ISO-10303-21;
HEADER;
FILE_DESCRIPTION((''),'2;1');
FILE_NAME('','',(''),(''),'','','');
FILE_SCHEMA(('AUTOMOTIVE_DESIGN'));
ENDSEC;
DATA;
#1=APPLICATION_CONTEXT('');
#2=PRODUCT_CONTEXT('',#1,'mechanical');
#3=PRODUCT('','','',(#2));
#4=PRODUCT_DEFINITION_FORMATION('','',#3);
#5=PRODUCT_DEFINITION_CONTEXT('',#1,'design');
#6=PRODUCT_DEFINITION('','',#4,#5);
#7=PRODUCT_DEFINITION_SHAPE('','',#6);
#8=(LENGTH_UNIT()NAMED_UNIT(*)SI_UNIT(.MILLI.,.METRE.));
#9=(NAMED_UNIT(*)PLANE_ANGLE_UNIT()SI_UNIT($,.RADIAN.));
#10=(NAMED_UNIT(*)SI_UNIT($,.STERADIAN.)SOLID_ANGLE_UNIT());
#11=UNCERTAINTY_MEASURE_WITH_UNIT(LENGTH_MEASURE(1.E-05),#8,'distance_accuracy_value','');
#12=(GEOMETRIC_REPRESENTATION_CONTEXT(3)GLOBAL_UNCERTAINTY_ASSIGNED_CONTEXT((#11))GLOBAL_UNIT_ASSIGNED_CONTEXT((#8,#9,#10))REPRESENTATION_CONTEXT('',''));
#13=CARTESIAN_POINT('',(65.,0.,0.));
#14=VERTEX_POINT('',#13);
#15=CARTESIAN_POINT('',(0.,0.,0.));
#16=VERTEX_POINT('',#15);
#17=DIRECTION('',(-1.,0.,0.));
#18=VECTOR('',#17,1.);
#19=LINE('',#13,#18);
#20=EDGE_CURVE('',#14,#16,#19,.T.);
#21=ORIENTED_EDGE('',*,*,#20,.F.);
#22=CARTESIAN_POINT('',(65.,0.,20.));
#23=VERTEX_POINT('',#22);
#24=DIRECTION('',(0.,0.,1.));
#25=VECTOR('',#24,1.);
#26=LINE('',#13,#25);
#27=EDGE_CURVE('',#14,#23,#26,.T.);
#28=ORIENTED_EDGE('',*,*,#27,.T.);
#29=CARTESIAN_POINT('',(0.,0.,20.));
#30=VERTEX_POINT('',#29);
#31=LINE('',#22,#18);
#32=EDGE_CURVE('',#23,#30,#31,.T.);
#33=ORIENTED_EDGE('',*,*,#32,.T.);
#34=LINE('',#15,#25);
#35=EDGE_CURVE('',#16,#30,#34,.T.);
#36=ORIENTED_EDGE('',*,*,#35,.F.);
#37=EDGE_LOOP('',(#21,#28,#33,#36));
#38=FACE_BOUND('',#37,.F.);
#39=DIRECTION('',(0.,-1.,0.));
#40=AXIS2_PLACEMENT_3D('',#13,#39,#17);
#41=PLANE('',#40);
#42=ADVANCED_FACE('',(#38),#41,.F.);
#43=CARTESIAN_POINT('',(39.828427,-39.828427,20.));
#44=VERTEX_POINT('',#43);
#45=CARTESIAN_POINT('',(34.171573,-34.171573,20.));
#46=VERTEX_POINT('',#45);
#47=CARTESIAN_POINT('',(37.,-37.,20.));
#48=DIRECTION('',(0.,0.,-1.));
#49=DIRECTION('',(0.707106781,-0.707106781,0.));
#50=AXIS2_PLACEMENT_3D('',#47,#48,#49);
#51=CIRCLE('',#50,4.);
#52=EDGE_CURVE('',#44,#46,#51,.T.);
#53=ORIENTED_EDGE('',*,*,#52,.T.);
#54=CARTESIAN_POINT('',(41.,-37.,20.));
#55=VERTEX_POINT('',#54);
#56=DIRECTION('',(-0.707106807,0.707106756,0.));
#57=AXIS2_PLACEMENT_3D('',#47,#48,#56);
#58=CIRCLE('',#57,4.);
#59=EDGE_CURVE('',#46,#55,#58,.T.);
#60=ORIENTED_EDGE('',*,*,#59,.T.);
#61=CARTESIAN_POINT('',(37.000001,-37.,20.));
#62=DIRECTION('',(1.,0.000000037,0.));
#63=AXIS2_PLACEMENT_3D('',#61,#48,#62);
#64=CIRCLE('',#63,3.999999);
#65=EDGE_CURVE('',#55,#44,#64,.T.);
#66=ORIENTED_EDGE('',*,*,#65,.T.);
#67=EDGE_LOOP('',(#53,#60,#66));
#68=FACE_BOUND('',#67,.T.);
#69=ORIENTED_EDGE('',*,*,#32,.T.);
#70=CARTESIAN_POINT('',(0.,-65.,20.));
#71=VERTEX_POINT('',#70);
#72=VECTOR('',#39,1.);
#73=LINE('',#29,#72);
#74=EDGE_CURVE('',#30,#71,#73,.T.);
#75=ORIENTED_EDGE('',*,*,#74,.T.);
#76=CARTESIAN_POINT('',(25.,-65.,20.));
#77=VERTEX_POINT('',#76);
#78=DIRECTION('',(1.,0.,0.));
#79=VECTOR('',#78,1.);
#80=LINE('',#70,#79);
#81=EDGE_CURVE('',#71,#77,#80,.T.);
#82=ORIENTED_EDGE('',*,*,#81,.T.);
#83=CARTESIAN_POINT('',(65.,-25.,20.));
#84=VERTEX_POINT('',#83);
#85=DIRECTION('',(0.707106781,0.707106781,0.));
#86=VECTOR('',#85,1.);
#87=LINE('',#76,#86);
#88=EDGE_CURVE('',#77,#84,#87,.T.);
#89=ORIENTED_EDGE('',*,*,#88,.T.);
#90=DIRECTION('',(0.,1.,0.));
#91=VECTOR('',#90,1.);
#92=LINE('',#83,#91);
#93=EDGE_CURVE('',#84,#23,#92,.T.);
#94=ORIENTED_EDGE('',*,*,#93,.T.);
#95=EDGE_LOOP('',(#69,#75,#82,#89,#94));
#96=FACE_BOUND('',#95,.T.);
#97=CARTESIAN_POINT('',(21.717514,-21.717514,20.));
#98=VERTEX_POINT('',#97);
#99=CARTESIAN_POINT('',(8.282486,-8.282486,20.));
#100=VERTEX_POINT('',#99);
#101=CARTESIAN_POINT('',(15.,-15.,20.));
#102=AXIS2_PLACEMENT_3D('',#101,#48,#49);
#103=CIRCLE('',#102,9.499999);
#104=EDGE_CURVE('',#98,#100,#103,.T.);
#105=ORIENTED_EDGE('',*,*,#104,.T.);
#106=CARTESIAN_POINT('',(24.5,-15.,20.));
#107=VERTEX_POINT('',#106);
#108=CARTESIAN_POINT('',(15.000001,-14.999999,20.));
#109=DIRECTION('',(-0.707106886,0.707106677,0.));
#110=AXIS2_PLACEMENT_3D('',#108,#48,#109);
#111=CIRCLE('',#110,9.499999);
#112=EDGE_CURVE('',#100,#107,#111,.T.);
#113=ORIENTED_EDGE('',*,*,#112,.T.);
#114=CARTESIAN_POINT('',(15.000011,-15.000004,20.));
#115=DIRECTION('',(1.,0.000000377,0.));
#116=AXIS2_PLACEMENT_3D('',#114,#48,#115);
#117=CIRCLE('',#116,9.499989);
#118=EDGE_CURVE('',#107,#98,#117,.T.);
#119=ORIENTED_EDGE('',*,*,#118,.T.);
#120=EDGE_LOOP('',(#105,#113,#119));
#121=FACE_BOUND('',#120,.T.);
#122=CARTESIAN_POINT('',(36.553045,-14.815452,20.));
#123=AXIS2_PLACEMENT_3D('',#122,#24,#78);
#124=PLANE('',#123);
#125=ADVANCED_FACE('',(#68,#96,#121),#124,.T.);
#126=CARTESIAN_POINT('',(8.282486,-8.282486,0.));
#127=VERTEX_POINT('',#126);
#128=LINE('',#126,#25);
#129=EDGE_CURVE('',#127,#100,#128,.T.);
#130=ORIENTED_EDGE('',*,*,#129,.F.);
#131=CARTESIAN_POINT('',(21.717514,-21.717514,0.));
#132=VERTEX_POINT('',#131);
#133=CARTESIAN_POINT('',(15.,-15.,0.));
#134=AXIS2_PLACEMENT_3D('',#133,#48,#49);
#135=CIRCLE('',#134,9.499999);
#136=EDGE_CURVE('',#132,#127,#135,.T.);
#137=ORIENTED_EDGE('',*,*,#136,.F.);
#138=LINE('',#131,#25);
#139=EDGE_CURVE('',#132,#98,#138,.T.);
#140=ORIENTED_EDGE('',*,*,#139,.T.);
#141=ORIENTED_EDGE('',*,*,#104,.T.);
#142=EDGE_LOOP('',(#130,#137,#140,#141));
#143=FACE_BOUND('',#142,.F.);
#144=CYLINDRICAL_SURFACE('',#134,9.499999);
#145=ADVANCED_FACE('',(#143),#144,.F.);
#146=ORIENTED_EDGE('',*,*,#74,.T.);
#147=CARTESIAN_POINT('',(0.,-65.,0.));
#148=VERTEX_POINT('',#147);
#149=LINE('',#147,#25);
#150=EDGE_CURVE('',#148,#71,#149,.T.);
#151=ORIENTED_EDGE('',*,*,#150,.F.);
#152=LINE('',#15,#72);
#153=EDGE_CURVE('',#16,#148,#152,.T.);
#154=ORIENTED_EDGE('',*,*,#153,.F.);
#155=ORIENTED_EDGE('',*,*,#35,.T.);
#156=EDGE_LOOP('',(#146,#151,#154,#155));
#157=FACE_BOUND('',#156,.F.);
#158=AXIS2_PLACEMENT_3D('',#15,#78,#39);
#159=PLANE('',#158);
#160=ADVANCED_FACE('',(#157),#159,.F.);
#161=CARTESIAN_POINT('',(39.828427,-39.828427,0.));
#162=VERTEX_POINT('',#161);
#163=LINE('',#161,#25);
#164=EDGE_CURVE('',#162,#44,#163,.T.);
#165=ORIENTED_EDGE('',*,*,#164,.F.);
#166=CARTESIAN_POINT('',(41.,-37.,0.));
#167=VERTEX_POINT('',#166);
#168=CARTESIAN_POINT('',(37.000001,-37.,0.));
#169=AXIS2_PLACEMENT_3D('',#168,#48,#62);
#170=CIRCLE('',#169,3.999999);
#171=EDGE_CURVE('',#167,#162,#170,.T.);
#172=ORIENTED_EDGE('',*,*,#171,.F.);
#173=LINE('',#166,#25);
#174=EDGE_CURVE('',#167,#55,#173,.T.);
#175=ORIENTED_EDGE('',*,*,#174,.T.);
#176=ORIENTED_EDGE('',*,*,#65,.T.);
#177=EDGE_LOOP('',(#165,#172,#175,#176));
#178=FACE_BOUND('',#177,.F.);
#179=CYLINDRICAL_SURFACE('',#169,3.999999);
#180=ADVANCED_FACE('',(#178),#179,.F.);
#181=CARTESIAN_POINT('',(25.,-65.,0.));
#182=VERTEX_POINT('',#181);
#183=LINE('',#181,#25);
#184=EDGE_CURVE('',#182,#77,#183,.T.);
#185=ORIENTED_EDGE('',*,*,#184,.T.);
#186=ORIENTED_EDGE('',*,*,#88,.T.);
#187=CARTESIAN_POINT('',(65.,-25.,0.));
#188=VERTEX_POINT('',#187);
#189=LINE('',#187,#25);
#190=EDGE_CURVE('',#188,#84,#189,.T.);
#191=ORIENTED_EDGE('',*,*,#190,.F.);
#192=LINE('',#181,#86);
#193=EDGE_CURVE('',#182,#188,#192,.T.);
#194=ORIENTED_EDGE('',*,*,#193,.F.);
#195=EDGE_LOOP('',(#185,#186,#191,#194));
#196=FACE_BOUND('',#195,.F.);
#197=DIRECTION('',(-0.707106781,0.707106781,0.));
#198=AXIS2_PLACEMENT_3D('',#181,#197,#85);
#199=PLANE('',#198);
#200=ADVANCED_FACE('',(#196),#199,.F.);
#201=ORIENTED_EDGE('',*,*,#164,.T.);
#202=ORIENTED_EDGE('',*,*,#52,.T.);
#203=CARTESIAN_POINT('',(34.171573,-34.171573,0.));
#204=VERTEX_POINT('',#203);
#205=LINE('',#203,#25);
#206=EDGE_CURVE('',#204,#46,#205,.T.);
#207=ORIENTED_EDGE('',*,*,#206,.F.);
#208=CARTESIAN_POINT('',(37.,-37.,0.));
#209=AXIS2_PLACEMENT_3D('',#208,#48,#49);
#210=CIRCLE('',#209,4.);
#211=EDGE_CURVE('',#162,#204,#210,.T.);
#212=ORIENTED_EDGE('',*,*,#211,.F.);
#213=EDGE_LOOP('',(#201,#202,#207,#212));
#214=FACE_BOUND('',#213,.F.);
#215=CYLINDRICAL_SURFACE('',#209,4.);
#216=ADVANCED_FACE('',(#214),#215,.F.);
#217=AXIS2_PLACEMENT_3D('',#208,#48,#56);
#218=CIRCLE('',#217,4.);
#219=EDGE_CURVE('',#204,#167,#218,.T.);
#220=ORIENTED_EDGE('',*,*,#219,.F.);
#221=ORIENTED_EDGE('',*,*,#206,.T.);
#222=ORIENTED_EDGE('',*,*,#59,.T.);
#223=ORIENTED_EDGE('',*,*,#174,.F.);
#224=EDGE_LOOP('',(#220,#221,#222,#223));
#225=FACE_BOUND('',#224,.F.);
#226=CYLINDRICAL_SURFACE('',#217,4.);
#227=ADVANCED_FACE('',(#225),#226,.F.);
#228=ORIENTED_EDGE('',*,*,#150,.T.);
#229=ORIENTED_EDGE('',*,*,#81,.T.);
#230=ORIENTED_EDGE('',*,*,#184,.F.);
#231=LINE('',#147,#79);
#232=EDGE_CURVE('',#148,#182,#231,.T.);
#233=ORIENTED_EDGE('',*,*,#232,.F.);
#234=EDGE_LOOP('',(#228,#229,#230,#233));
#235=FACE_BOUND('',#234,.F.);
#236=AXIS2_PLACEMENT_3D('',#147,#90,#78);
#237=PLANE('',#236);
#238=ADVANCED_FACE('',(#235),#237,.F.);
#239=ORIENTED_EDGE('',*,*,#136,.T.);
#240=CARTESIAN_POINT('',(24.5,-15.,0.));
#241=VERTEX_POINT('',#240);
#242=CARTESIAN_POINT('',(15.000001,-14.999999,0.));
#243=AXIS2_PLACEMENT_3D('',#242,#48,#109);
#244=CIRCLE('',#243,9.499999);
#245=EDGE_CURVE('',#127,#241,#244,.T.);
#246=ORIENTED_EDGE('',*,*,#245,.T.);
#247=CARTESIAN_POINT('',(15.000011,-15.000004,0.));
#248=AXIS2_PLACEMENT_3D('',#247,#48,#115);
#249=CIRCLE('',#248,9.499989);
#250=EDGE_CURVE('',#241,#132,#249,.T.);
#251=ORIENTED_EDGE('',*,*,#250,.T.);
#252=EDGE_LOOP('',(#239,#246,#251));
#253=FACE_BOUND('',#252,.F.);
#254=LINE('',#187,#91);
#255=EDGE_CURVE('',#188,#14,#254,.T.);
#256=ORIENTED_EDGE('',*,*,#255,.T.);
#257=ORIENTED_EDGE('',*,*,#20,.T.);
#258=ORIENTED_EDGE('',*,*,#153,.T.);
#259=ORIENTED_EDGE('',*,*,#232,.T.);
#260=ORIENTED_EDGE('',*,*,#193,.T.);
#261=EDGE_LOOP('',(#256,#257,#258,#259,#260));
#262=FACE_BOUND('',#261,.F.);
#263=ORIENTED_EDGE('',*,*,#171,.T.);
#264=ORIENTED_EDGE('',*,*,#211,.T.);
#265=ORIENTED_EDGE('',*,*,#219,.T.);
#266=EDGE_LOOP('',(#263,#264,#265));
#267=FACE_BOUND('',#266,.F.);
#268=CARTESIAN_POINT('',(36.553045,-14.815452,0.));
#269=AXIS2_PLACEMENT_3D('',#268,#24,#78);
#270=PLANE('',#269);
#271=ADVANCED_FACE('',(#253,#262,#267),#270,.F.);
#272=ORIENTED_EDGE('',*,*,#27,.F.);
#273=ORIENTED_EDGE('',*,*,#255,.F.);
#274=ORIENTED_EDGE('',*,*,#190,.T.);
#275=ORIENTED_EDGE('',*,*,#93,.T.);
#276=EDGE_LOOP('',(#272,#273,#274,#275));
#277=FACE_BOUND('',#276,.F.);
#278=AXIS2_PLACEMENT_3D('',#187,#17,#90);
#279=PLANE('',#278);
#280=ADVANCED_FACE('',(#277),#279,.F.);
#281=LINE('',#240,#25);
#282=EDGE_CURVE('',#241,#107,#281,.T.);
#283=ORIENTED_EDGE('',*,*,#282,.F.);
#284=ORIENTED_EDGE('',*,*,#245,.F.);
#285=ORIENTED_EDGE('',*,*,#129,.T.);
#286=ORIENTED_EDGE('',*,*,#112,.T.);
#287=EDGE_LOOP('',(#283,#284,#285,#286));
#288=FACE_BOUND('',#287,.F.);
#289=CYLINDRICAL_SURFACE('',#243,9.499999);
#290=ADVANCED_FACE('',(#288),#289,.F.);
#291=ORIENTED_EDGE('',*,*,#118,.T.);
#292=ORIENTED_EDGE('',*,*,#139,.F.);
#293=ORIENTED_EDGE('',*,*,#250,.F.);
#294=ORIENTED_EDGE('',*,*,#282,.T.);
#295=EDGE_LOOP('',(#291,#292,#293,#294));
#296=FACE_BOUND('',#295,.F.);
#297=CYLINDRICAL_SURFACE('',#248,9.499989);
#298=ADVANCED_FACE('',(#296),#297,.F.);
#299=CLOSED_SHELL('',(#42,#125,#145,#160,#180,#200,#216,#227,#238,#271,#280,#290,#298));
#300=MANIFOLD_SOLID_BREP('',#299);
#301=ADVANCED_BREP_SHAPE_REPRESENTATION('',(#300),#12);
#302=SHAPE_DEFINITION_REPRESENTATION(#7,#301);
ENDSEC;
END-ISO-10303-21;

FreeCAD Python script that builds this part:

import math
import FreeCAD as App
import Part
import Sketcher
from FreeCAD import Vector
Q = App.Units.Quantity


def add_polygon(sketch, points):
    """Adds a closed chain of lines whose ends are joined by coincident constraints."""
    first, n = sketch.GeometryCount, len(points)
    for a, b in zip(points, points[1:] + points[:1]):
        sketch.addGeometry(Part.LineSegment(App.Vector(*a, 0), App.Vector(*b, 0)), False)
    for i in range(n):
        sketch.addConstraint(Sketcher.Constraint("Coincident", first + i, 2, first + (i + 1) % n, 1))

doc = App.newDocument("Part")
body = doc.addObject("PartDesign::Body", "Body")

# Sketch on XY plane
sketch1 = body.newObject("Sketcher::SketchObject", "Sketch")
sketch1.AttachmentSupport = (doc.getObject("XY_Plane"), [""])
sketch1.MapMode = "FlatFace"
add_polygon(sketch1, [(65, -25), (65, 0), (0, 0), (0, -65), (25, -65)])  # lines 0-4
sketch1.addGeometry(Part.ArcOfCircle(Part.Circle(Vector(15.000001, -14.999999, 0), Vector(0, 0, 1), 9.499999), math.radians(-0.000007), math.radians(135.000008)), False)  # 5
sketch1.addGeometry(Part.ArcOfCircle(Part.Circle(Vector(15.000011, -15.000004, 0), Vector(0, 0, 1), 9.499989), math.radians(-45.00003), math.radians(0.000022)), False)  # 6
sketch1.addGeometry(Part.ArcOfCircle(Part.Circle(Vector(15, -15, 0), Vector(0, 0, 1), 9.499999), math.radians(135), math.radians(315)), False)  # 7
sketch1.addGeometry(Part.ArcOfCircle(Part.Circle(Vector(37, -37, 0), Vector(0, 0, 1), 4), math.radians(-0.000001), math.radians(135.000002)), False)  # 8
sketch1.addGeometry(Part.ArcOfCircle(Part.Circle(Vector(37.000001, -37, 0), Vector(0, 0, 1), 3.999999), math.radians(-45.000008), math.radians(0.000002)), False)  # 9
sketch1.addGeometry(Part.ArcOfCircle(Part.Circle(Vector(37, -37, 0), Vector(0, 0, 1), 4), math.radians(135), math.radians(315)), False)  # 10
sketch1.addConstraint([
    Sketcher.Constraint("Tangent", 5, 1, 6, 2),
    Sketcher.Constraint("Tangent", 6, 1, 7, 2),
    Sketcher.Constraint("Tangent", 7, 1, 5, 2),
    Sketcher.Constraint("Tangent", 8, 1, 9, 2),
    Sketcher.Constraint("Tangent", 9, 1, 10, 2),
    Sketcher.Constraint("Tangent", 10, 1, 8, 2),
    Sketcher.Constraint("Vertical", 0),
    Sketcher.Constraint("Horizontal", 1),
    Sketcher.Constraint("Vertical", 2),
    Sketcher.Constraint("Horizontal", 3),
    Sketcher.Constraint("Coincident", 1, 2, -1, 1),
    Sketcher.Constraint("Horizontal", 7, 3, 5, 1),
    Sketcher.Constraint("Horizontal", 10, 3, 8, 1),
    Sketcher.Constraint("Equal", 3, 0),
    Sketcher.Constraint("Equal", 1, 2),
    Sketcher.Constraint("Radius", 8, Q("4 mm")),
    Sketcher.Constraint("Radius", 5, Q("9.499999 mm")),
    Sketcher.Constraint("DistanceX", 1, 2, 1, 1, Q("65 mm")),
    Sketcher.Constraint("DistanceX", 3, 1, 3, 2, Q("25 mm")),
    Sketcher.Constraint("DistanceX", -1, 1, 5, 3, Q("15.000001 mm")),
    Sketcher.Constraint("DistanceY", 5, 3, -1, 1, Q("14.999999 mm")),
    Sketcher.Constraint("DistanceX", -1, 1, 8, 3, Q("37 mm")),
    Sketcher.Constraint("DistanceY", 8, 3, -1, 1, Q("37 mm")),
    Sketcher.Constraint("DistanceY", 6, 1, 6, 3, Q("6.71751 mm")),
    Sketcher.Constraint("DistanceX", -1, 1, 7, 1, Q("8.282486 mm")),
    Sketcher.Constraint("DistanceX", -1, 1, 9, 1, Q("39.828427 mm")),
    Sketcher.Constraint("DistanceX", -1, 1, 10, 1, Q("34.171573 mm")),
])
pad1 = body.newObject("PartDesign::Pad", "Pad")
pad1.Profile = sketch1
pad1.Length = 20

doc.recompute()
